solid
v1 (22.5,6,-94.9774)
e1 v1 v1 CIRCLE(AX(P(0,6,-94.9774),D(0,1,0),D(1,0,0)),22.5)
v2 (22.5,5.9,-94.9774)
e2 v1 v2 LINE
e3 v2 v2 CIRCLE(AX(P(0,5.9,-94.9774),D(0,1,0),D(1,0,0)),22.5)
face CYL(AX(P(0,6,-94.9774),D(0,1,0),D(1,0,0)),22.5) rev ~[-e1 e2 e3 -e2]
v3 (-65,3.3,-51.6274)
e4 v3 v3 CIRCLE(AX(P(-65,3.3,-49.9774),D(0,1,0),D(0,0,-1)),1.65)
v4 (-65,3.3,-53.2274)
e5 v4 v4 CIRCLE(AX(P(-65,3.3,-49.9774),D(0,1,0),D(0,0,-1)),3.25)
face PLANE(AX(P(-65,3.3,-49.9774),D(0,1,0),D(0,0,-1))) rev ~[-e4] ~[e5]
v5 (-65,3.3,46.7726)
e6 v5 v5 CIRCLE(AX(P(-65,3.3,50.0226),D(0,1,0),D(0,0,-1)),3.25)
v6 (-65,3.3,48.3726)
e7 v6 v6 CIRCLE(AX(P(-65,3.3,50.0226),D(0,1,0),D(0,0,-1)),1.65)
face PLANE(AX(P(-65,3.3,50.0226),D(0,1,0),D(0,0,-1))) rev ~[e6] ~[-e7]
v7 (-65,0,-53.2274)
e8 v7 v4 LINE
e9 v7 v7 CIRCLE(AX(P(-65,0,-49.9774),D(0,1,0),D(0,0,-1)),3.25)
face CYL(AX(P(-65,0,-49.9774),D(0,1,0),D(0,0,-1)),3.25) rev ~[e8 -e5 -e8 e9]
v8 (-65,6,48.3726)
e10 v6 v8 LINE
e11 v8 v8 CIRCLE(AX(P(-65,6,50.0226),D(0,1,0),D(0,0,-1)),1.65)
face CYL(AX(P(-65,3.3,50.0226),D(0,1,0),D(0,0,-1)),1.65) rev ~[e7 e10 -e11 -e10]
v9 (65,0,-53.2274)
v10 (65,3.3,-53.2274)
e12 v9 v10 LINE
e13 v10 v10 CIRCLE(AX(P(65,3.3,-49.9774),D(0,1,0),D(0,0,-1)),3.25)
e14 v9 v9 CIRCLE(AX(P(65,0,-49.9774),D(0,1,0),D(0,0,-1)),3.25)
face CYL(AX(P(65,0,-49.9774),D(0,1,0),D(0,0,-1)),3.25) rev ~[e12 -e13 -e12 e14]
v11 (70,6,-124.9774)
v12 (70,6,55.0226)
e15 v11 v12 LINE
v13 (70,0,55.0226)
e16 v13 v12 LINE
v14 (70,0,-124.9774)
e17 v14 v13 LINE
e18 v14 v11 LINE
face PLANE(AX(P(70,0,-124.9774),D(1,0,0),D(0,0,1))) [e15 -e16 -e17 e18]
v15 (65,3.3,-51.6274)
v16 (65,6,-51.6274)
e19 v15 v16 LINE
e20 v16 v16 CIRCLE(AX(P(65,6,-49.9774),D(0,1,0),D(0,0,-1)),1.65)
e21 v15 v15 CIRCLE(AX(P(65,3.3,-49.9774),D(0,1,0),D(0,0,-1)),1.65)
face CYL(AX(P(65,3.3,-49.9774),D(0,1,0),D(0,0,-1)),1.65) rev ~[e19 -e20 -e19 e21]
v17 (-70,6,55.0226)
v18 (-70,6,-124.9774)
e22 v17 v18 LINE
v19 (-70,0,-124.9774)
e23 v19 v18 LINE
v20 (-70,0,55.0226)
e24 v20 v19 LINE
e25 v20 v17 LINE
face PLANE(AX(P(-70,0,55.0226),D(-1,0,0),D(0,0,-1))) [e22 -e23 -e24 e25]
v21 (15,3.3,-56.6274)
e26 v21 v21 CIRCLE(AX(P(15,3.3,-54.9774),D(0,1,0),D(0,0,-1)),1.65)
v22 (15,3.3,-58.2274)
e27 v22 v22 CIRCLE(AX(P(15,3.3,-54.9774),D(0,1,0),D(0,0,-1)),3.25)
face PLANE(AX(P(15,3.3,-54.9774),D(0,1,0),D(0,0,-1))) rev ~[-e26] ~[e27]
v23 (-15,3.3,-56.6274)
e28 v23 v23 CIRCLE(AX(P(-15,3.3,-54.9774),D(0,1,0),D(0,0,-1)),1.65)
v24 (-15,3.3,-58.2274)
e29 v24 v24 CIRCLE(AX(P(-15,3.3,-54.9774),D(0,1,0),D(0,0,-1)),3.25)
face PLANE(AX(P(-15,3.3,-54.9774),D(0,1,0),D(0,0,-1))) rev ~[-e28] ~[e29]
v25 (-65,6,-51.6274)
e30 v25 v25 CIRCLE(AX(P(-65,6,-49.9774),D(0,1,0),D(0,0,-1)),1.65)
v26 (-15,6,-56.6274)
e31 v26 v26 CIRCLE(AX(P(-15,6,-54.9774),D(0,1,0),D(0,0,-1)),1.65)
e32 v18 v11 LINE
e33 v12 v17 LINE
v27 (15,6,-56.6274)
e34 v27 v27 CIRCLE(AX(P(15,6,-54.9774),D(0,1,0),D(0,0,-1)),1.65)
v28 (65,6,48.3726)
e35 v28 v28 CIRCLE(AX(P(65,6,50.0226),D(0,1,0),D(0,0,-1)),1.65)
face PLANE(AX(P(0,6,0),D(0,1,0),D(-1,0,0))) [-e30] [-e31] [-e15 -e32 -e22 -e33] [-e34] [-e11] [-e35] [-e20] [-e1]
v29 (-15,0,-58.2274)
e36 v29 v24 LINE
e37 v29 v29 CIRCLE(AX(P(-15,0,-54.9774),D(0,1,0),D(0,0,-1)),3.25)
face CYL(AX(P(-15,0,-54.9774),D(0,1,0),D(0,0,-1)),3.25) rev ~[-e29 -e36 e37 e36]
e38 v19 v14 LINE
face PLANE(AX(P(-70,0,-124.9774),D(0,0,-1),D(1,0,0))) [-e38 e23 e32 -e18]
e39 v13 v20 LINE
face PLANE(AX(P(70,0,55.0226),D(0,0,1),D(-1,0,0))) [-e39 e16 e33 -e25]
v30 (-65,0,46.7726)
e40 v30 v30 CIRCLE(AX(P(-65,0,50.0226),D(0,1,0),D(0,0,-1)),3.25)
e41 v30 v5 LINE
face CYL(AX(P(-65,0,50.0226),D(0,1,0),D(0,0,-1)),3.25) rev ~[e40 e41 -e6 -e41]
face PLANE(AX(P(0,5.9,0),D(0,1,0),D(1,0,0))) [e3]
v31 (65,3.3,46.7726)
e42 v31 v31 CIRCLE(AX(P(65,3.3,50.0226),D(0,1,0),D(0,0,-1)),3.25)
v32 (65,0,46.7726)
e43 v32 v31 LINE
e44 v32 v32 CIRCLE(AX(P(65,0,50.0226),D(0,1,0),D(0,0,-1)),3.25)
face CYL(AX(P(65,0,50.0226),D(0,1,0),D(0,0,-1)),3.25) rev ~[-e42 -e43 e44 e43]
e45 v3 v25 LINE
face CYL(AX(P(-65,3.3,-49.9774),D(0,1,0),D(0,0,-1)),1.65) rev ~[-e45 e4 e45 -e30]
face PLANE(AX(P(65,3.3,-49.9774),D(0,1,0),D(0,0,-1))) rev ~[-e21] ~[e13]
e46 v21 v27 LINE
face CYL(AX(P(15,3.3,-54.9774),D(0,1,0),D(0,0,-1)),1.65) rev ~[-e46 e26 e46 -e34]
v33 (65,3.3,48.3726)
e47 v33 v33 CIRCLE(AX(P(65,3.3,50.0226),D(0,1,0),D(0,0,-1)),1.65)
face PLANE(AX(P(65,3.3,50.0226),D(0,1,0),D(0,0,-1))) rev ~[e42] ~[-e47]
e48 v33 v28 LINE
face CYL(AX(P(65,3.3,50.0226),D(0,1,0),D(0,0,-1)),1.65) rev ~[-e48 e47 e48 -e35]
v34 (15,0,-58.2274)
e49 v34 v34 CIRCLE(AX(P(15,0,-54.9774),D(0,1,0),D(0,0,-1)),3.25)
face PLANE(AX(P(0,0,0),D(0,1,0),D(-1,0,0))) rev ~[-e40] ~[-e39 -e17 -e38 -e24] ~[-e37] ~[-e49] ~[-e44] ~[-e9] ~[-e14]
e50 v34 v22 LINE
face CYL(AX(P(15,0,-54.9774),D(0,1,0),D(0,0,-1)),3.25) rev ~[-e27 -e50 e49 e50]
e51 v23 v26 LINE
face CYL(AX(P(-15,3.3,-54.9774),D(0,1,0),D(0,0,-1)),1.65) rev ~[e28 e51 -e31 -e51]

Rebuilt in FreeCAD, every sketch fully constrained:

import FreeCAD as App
import Part
import Sketcher

V = App.Vector
Q = App.Units.Quantity


def add_polygon(sketch, points):
    """Adds a closed chain of lines whose ends are joined by coincident constraints."""
    first, n = sketch.GeometryCount, len(points)
    for a, b in zip(points, points[1:] + points[:1]):
        sketch.addGeometry(Part.LineSegment(App.Vector(*a, 0), App.Vector(*b, 0)), False)
    for i in range(n):
        sketch.addConstraint(Sketcher.Constraint("Coincident", first + i, 2, first + (i + 1) % n, 1))

doc = App.newDocument("Part")
params = doc.addObject("Spreadsheet::Sheet", "Params")
for row, (alias, value) in enumerate([
    ("sketch1_width", "140 mm"),
    ("sketch1_height", "180 mm"),
    ("pad1_length", "6 mm"),
    ("sketch2_diameter", "3.3 mm"),
    ("hole_diameter", "3.3 mm"),
    ("hole_cbore_diameter", "6.5 mm"),
    ("hole_cbore_depth", "3.3 mm"),
    ("sketch3_diameter", "45 mm"),
    ("pocket1_length", "0.1 mm"),
], start=1):
    params.set(f"A{row}", alias)
    params.set(f"B{row}", "=" + value)
    params.setAlias(f"B{row}", alias)

body = doc.addObject("PartDesign::Body", "Body")

# Sketch on XZ plane
sketch1 = doc.addObject("Sketcher::SketchObject", "Sketch")
body.addObject(sketch1)
sketch1.AttachmentSupport = (doc.XZ_Plane, [""])
sketch1.MapMode = "FlatFace"
add_polygon(sketch1, [(70, -124.9774), (-70, -124.9774), (-70, 55.0226), (70, 55.0226)])  # lines 0-3
sketch1.addConstraint([
    Sketcher.Constraint("Horizontal", 0),
    Sketcher.Constraint("Vertical", 1),
    Sketcher.Constraint("Horizontal", 2),
    Sketcher.Constraint("Vertical", 3),
    Sketcher.Constraint("DistanceX", 0, 2, 0, 1, Q("140 mm")),
    Sketcher.Constraint("DistanceY", 1, 1, 1, 2, Q("180 mm")),
    Sketcher.Constraint("DistanceX", 0, 2, -1, 1, Q("70 mm")),
    Sketcher.Constraint("DistanceY", 0, 2, -1, 1, Q("124.9774 mm")),
])
sketch1.setExpression("Constraints[8]", "Params.sketch1_width")
sketch1.setExpression("Constraints[9]", "Params.sketch1_height")
pad1 = doc.addObject("PartDesign::Pad", "Pad")
body.addObject(pad1)
pad1.Profile = sketch1
pad1.setExpression("Length", "Params.pad1_length")
pad1.Reversed = True

# Sketch on XZ plane
sketch2 = doc.addObject("Sketcher::SketchObject", "Sketch001")
body.addObject(sketch2)
sketch2.AttachmentSupport = (doc.XZ_Plane, [""])
sketch2.MapMode = "FlatFace"
sketch2.addGeometry([
    Part.Circle(V(65, 50.0226, 0), V(0, 0, 1), 1.65),  # 0
    Part.Circle(V(65, -49.9774, 0), V(0, 0, 1), 1.65),  # 1
    Part.Circle(V(-65, -49.9774, 0), V(0, 0, 1), 1.65),  # 2
    Part.Circle(V(-65, 50.0226, 0), V(0, 0, 1), 1.65),  # 3
    Part.Circle(V(15, -54.9774, 0), V(0, 0, 1), 1.65),  # 4
    Part.Circle(V(-15, -54.9774, 0), V(0, 0, 1), 1.65),  # 5
], False)
sketch2.addConstraint([
    Sketcher.Constraint("Equal", 0, 1),
    Sketcher.Constraint("Equal", 1, 2),
    Sketcher.Constraint("Equal", 2, 3),
    Sketcher.Constraint("Equal", 3, 4),
    Sketcher.Constraint("Equal", 4, 5),
    Sketcher.Constraint("Symmetric", 1, 3, 2, 3, -2),
    Sketcher.Constraint("Symmetric", 0, 3, 3, 3, -2),
    Sketcher.Constraint("Symmetric", 4, 3, 5, 3, -2),
    Sketcher.Constraint("Vertical", 0, 3, 1, 3),
    Sketcher.Constraint("Diameter", 0, Q("3.3 mm")),
    Sketcher.Constraint("DistanceX", -1, 1, 0, 3, Q("65 mm")),
    Sketcher.Constraint("DistanceX", -1, 1, 4, 3, Q("15 mm")),
    Sketcher.Constraint("DistanceY", 1, 3, 0, 3, Q("100 mm")),
    Sketcher.Constraint("DistanceY", 4, 3, 1, 3, Q("5 mm")),
    Sketcher.Constraint("DistanceY", -1, 1, 0, 3, Q("50.0226 mm")),
])
sketch2.setExpression("Constraints[9]", "Params.sketch2_diameter")
doc.recompute()
hole = doc.addObject("PartDesign::Hole", "Hole")
body.addObject(hole)
hole.Profile = sketch2
hole.ThreadType = "None"
hole.setExpression("Diameter", "Params.hole_diameter")
hole.DepthType = "ThroughAll"
hole.HoleCutType = "Counterbore"
hole.setExpression("HoleCutDiameter", "Params.hole_cbore_diameter")
hole.setExpression("HoleCutDepth", "Params.hole_cbore_depth")

# Sketch on XZ plane
sketch3 = doc.addObject("Sketcher::SketchObject", "Sketch002")
body.addObject(sketch3)
sketch3.AttachmentSupport = (doc.XZ_Plane, [""])
sketch3.MapMode = "FlatFace"
sketch3.AttachmentOffset = App.Placement(V(0, 0, -6), App.Rotation())
sketch3.addGeometry(Part.Circle(V(0, -94.9774, 0), V(0, 0, 1), 22.5), False)
sketch3.addConstraint([
    Sketcher.Constraint("PointOnObject", 0, 3, -2),
    Sketcher.Constraint("Diameter", 0, Q("45 mm")),
    Sketcher.Constraint("DistanceY", 0, 3, -1, 1, Q("94.9774 mm")),
])
sketch3.setExpression("Constraints[1]", "Params.sketch3_diameter")
pocket1 = doc.addObject("PartDesign::Pocket", "Pocket")
body.addObject(pocket1)
pocket1.Profile = sketch3
pocket1.setExpression("Length", "Params.pocket1_length")
pocket1.Reversed = True

doc.recompute()
